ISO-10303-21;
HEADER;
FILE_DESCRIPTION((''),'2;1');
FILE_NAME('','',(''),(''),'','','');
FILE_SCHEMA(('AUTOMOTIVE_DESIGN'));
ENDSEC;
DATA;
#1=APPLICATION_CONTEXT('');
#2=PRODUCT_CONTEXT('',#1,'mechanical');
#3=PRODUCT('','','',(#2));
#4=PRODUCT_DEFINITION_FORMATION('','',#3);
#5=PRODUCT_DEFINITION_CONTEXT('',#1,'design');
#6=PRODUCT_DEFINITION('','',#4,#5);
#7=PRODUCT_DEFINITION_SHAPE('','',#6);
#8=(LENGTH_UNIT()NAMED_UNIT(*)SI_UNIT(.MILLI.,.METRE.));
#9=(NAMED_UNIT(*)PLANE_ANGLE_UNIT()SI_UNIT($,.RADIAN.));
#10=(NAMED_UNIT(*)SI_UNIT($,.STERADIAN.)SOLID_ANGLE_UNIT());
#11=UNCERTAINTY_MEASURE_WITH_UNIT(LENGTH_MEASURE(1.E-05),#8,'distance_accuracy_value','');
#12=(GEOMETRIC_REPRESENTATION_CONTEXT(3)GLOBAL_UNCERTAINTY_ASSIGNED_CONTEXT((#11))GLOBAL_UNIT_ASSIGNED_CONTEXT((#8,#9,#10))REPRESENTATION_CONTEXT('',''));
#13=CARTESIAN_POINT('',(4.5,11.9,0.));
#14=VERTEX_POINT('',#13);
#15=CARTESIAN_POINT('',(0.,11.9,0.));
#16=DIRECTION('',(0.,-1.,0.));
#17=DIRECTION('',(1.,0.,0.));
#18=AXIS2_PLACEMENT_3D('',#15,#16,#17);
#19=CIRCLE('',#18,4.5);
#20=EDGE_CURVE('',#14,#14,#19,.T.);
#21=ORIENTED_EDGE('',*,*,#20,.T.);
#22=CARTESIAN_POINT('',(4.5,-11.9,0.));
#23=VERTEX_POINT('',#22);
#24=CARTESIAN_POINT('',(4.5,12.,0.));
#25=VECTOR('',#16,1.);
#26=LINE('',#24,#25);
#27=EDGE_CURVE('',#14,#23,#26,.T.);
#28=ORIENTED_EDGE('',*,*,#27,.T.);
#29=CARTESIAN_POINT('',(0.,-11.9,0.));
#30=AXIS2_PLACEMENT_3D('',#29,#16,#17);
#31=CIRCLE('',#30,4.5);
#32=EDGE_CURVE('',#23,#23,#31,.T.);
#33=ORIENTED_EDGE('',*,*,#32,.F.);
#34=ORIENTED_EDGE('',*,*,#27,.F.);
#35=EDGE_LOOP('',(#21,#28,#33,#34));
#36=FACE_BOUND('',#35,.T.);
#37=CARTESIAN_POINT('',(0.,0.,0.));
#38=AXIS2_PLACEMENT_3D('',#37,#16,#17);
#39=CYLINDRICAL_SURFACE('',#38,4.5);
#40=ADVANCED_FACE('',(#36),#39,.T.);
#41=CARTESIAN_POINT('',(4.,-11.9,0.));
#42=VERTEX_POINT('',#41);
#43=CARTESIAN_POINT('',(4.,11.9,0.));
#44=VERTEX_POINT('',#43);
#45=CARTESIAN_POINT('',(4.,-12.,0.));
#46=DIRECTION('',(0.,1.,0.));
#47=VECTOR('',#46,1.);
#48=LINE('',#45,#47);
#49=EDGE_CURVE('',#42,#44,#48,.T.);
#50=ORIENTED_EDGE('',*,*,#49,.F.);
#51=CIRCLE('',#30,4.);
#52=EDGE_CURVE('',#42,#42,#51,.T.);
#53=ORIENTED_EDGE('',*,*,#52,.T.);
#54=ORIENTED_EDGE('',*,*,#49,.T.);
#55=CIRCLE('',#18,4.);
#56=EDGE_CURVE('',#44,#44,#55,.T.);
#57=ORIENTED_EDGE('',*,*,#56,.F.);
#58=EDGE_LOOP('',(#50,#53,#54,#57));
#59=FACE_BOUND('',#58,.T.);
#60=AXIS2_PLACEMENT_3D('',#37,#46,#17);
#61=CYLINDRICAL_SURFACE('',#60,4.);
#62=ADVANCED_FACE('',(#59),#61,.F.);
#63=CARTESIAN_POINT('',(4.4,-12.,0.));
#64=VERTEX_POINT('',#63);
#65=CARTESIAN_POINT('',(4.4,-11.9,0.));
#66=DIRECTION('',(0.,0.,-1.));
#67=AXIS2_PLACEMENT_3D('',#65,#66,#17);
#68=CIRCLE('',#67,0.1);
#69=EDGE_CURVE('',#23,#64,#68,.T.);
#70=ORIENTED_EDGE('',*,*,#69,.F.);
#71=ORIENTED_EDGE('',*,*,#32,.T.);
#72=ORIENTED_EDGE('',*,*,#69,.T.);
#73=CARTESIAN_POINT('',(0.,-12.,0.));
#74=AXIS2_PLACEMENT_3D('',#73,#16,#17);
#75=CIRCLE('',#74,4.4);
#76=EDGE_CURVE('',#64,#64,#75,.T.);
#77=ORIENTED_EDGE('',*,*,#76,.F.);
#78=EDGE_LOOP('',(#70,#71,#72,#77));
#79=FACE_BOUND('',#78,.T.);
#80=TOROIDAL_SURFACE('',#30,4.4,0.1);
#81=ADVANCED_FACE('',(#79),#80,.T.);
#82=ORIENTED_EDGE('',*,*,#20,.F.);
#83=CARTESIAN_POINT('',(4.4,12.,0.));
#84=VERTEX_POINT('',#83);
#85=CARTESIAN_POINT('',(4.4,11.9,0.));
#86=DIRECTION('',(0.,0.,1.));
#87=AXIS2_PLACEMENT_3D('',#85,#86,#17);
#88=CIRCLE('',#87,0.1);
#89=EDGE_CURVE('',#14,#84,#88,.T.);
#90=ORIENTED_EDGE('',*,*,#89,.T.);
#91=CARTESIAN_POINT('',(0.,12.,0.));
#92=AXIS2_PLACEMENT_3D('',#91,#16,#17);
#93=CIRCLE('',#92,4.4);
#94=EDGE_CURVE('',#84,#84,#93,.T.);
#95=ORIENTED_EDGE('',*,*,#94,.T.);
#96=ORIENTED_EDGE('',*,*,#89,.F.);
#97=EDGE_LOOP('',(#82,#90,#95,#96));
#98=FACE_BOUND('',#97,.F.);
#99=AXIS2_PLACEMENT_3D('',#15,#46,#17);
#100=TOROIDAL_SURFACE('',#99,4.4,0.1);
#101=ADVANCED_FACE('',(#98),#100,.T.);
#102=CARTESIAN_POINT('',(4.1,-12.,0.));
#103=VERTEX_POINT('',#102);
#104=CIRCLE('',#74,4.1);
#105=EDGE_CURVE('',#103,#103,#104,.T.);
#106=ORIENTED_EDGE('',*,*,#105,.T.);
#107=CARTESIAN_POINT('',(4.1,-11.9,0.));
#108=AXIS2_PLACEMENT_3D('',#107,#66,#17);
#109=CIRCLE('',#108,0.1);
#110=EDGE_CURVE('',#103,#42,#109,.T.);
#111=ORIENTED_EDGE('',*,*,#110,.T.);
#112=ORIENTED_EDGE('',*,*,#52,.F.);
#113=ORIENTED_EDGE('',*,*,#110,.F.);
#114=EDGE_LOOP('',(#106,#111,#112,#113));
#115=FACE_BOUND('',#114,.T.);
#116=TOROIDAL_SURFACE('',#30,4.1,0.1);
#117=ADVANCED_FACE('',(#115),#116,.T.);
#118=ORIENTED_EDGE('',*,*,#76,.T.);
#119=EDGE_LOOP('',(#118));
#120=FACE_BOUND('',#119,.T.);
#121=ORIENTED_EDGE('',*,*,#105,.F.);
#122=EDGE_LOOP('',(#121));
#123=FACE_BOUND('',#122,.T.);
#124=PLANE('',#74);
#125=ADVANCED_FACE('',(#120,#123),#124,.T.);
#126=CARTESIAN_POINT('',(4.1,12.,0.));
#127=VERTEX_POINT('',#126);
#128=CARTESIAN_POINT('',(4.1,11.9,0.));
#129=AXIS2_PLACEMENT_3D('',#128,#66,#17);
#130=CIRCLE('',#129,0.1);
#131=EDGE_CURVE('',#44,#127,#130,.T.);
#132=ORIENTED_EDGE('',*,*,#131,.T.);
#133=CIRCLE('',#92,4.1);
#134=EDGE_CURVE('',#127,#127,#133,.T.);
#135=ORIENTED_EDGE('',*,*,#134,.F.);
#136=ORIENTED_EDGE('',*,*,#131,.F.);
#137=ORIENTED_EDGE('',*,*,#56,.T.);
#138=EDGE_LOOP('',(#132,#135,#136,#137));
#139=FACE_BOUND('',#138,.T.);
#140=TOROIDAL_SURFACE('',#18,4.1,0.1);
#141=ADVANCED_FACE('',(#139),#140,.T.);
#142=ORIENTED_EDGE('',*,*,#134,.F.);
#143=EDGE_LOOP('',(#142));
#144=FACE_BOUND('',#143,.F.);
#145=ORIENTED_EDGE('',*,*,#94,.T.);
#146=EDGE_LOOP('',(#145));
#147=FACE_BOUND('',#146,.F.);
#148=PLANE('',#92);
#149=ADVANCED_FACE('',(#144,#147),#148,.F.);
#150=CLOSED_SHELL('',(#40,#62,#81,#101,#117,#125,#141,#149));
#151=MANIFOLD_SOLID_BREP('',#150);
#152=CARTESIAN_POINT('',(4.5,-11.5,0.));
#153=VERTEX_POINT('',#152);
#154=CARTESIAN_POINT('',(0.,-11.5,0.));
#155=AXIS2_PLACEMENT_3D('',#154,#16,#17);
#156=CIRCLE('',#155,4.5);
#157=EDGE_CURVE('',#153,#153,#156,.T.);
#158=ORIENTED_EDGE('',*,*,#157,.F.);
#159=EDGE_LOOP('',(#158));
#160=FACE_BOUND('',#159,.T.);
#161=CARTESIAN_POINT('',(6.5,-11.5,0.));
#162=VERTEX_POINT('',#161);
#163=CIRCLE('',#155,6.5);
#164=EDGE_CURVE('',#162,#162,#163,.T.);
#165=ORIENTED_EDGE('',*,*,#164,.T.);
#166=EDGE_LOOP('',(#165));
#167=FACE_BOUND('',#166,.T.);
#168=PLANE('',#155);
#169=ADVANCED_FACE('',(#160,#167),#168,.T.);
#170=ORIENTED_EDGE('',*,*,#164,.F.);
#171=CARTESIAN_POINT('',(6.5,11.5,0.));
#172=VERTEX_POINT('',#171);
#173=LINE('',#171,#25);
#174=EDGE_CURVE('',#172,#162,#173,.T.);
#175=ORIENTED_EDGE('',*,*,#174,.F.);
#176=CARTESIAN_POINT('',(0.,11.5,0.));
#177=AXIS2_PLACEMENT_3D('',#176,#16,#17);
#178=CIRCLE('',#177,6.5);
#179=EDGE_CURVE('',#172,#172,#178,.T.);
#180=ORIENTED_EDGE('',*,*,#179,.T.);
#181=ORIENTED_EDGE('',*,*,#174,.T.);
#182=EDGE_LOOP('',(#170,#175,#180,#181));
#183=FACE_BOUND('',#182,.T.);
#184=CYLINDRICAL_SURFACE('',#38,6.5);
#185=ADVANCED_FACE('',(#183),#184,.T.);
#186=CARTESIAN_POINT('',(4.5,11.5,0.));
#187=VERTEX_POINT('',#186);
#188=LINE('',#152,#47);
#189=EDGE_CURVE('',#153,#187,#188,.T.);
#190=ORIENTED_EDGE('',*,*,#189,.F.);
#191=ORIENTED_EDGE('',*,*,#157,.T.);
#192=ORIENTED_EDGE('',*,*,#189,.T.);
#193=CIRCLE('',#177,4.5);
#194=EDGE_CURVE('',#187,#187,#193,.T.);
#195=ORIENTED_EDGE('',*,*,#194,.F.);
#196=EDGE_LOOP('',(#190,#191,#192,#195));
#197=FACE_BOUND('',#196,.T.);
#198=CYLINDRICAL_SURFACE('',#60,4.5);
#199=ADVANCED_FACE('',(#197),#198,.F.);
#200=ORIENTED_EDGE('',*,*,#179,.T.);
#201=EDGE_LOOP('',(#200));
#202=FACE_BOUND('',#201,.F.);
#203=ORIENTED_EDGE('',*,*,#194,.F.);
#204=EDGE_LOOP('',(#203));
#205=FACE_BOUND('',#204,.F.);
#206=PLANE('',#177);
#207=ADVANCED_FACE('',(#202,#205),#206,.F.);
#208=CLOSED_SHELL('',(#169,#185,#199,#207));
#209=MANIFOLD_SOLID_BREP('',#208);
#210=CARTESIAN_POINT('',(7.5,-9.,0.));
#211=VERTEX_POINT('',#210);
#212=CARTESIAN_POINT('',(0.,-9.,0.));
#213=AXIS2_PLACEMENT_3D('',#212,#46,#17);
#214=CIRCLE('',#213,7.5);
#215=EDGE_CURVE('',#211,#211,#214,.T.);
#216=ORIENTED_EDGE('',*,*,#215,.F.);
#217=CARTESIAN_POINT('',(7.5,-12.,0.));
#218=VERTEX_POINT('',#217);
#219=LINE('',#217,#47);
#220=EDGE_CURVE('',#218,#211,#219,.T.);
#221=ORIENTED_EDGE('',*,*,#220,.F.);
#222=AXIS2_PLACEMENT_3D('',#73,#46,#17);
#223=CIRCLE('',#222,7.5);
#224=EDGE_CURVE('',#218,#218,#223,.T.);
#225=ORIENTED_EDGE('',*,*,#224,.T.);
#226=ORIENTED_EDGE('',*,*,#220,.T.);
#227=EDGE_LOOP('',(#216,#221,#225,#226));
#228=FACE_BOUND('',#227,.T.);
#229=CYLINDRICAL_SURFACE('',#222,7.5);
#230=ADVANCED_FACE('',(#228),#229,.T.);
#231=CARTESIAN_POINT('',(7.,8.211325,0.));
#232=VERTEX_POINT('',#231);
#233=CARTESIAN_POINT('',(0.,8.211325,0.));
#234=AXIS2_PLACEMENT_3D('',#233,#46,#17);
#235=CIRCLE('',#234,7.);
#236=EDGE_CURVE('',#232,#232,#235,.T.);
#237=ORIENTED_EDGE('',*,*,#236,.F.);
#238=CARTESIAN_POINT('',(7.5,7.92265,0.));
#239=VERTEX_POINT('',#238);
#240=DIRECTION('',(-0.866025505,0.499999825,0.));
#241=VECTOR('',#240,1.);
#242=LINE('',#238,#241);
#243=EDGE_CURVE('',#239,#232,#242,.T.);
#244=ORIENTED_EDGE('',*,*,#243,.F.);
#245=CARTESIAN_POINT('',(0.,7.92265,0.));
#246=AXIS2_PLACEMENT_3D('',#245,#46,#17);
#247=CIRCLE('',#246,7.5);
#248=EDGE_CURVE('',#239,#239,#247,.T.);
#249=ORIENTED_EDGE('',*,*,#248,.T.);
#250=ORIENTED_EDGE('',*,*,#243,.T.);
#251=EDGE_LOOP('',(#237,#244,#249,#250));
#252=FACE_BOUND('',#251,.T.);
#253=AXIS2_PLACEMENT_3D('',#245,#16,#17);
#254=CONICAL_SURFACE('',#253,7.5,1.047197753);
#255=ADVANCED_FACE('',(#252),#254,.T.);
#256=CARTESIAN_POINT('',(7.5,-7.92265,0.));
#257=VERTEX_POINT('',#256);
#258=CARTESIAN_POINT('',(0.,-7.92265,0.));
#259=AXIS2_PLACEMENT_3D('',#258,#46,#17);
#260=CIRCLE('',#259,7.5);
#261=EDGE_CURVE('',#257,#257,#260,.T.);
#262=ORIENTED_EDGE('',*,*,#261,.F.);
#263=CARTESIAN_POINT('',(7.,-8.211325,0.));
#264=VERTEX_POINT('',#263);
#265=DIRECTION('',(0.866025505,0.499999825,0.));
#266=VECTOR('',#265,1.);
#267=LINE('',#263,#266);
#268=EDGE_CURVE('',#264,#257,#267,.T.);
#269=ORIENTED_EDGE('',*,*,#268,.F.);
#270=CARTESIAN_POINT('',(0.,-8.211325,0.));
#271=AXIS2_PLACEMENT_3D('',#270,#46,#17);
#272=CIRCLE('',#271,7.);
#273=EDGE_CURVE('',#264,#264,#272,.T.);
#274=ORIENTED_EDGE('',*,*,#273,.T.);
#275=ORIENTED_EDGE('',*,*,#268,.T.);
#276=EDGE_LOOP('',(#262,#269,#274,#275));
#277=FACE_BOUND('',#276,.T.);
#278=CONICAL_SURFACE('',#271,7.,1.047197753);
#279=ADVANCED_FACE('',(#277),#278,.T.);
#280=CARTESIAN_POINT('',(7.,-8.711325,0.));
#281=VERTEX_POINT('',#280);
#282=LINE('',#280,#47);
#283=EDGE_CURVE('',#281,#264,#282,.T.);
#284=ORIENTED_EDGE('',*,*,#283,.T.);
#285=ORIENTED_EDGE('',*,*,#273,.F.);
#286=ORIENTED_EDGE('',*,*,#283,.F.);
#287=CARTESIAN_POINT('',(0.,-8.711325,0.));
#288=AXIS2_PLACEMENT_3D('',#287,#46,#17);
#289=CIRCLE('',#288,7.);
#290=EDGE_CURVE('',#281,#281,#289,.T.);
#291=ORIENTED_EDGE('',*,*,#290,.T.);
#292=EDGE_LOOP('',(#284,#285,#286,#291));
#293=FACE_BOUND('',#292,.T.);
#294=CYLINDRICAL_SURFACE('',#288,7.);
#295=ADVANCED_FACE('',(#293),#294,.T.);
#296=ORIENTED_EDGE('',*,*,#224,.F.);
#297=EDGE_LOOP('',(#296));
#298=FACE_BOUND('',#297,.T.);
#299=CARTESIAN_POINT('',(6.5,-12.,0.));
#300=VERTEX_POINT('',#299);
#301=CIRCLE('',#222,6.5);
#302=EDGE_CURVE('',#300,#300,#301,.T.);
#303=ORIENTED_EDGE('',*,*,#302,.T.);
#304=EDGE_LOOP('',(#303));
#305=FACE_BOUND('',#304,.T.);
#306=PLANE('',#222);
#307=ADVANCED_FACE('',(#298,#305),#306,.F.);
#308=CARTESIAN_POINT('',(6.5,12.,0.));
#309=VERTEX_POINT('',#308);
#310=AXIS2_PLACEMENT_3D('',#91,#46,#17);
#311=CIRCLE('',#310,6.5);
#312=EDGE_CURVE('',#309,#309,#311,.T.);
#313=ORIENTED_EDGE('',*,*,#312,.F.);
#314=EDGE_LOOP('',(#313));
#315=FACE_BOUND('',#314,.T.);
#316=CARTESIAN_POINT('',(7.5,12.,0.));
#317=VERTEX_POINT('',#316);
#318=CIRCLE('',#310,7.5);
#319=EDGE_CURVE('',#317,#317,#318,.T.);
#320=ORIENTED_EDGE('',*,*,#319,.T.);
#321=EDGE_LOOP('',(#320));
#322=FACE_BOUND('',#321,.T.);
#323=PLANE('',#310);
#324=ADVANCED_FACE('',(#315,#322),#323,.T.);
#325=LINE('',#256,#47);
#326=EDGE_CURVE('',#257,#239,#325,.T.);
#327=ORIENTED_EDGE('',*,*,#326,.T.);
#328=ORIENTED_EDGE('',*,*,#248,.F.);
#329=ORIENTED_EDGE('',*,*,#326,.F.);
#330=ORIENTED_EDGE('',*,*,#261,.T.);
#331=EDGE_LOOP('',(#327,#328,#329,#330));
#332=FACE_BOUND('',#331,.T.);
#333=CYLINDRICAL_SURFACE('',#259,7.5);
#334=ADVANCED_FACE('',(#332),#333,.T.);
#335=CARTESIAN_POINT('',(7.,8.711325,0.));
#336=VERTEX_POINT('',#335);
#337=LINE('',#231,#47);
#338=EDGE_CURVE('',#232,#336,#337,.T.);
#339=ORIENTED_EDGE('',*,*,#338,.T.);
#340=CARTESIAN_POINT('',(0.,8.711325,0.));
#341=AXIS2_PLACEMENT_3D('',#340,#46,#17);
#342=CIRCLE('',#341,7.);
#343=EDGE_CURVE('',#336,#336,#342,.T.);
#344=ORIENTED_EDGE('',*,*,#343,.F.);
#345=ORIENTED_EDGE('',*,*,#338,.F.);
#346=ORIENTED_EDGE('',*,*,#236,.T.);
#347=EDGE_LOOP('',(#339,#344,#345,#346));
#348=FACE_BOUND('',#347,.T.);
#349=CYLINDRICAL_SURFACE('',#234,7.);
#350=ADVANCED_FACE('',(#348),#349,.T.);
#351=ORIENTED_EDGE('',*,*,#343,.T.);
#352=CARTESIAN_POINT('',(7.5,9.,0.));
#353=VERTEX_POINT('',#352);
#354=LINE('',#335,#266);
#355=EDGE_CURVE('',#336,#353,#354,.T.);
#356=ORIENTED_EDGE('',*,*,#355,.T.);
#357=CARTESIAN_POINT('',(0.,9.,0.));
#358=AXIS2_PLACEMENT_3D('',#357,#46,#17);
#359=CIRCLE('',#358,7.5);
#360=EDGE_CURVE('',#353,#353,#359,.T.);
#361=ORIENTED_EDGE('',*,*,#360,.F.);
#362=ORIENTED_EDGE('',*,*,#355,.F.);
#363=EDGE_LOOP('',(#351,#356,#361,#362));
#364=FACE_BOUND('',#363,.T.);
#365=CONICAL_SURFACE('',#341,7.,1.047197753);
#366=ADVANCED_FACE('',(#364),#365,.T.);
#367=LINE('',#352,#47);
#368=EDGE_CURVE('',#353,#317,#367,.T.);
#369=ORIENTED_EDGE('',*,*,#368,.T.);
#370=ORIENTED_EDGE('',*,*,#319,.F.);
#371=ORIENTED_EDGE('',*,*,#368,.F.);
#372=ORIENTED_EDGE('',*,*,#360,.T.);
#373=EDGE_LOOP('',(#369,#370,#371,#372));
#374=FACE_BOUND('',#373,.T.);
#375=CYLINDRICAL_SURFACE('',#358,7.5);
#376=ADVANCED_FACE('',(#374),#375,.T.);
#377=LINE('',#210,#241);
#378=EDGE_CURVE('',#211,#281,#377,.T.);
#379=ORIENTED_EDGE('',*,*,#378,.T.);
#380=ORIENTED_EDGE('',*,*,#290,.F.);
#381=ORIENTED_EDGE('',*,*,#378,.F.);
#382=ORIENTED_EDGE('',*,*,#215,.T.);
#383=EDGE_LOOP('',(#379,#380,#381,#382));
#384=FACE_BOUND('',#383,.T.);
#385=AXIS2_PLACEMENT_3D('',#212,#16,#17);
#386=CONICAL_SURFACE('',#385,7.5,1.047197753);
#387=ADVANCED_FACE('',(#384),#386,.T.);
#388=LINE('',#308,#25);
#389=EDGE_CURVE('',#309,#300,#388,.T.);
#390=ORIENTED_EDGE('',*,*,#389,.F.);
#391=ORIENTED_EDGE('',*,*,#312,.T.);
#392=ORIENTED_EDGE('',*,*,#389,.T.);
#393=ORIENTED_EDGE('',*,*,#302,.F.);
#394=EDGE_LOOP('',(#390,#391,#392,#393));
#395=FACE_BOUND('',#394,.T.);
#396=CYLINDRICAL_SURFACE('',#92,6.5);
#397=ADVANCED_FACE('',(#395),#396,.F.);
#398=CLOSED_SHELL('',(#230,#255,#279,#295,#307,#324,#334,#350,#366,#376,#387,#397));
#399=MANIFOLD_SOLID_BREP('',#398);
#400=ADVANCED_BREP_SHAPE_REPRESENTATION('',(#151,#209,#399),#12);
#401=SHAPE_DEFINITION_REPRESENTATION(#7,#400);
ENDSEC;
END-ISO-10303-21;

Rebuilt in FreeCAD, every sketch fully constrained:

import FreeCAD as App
import Part
import Sketcher
Q = App.Units.Quantity


def edges_at(feature, points):
    """Names of the edges that pass closest to the given points."""
    edges = feature.Shape.Edges
    near = lambda p: min(range(len(edges)), key=lambda i: edges[i].distToShape(Part.Vertex(*p))[0])
    return sorted({f"Edge{near(p) + 1}" for p in points})

doc = App.newDocument("Part")
body = doc.addObject("PartDesign::Body", "Body")

# Sketch on XZ plane
sketch1 = body.newObject("Sketcher::SketchObject", "Sketch")
sketch1.AttachmentSupport = (doc.getObject("XZ_Plane"), [""])
sketch1.MapMode = "FlatFace"
sketch1.addGeometry(Part.Circle(App.Vector(0, 0, 0), App.Vector(0, 0, 1), 4.5), False)
sketch1.addGeometry(Part.Circle(App.Vector(0, 0, 0), App.Vector(0, 0, 1), 4), False)
sketch1.addConstraint(Sketcher.Constraint("Coincident", 0, 3, -1, 1))
sketch1.addConstraint(Sketcher.Constraint("Coincident", 1, 3, -1, 1))
sketch1.addConstraint(Sketcher.Constraint("Diameter", 0, 9.0))
sketch1.addConstraint(Sketcher.Constraint("Diameter", 1, 8.0))
pad1 = body.newObject("PartDesign::Pad", "Pad")
pad1.Profile = sketch1
pad1.Length = 24
pad1.Midplane = True
doc.recompute()

fillet = body.newObject("PartDesign::Fillet", "Fillet")
fillet.Base = (pad1, edges_at(pad1, [
    (-4.5, 12, 0),
    (-4, 12, 0),
    (-4.5, -12, 0),
    (-4, -12, 0),
]))
fillet.Radius = 0.1
body2 = doc.addObject("PartDesign::Body", "Body001")

# Sketch on XZ plane
sketch2 = body2.newObject("Sketcher::SketchObject", "Sketch001")
sketch2.AttachmentSupport = (doc.getObject("XZ_Plane001"), [""])
sketch2.MapMode = "FlatFace"
sketch2.addGeometry(Part.Circle(App.Vector(0, 0, 0), App.Vector(0, 0, 1), 6.5), False)
sketch2.addGeometry(Part.Circle(App.Vector(0, 0, 0), App.Vector(0, 0, 1), 4.5), False)
sketch2.addConstraint(Sketcher.Constraint("Coincident", 0, 3, -1, 1))
sketch2.addConstraint(Sketcher.Constraint("Coincident", 1, 3, -1, 1))
sketch2.addConstraint(Sketcher.Constraint("Diameter", 0, 13.0))
sketch2.addConstraint(Sketcher.Constraint("Diameter", 1, 9.0))
pad2 = body2.newObject("PartDesign::Pad", "Pad001")
pad2.Profile = sketch2
pad2.Length = 23
pad2.Midplane = True
body3 = doc.addObject("PartDesign::Body", "Body002")

# Sketch on XY plane
sketch3 = body3.newObject("Sketcher::SketchObject", "Sketch002")
sketch3.AttachmentSupport = (doc.getObject("XY_Plane002"), [""])
sketch3.MapMode = "FlatFace"
sketch3.addGeometry(Part.LineSegment(App.Vector(6.5, 12, 0), App.Vector(6.5, -12, 0)), False)
sketch3.addGeometry(Part.LineSegment(App.Vector(6.5, -12, 0), App.Vector(7.5, -12, 0)), False)
sketch3.addGeometry(Part.LineSegment(App.Vector(7.5, -12, 0), App.Vector(7.5, -9, 0)), False)
sketch3.addGeometry(Part.LineSegment(App.Vector(7.5, -9, 0), App.Vector(7, -8.711325, 0)), False)
sketch3.addGeometry(Part.LineSegment(App.Vector(7, -8.711325, 0), App.Vector(7, -8.211325, 0)), False)
sketch3.addGeometry(Part.LineSegment(App.Vector(7, -8.211325, 0), App.Vector(7.5, -7.92265, 0)), False)
sketch3.addGeometry(Part.LineSegment(App.Vector(7.5, -7.92265, 0), App.Vector(7.5, 7.92265, 0)), False)
sketch3.addGeometry(Part.LineSegment(App.Vector(7.5, 7.92265, 0), App.Vector(7, 8.211325, 0)), False)
sketch3.addGeometry(Part.LineSegment(App.Vector(7, 8.211325, 0), App.Vector(7, 8.711325, 0)), False)
sketch3.addGeometry(Part.LineSegment(App.Vector(7, 8.711325, 0), App.Vector(7.5, 9, 0)), False)
sketch3.addGeometry(Part.LineSegment(App.Vector(7.5, 9, 0), App.Vector(7.5, 12, 0)), False)
sketch3.addGeometry(Part.LineSegment(App.Vector(7.5, 12, 0), App.Vector(6.5, 12, 0)), False)
sketch3.addConstraint(Sketcher.Constraint("Coincident", 0, 2, 1, 1))
sketch3.addConstraint(Sketcher.Constraint("Coincident", 1, 2, 2, 1))
sketch3.addConstraint(Sketcher.Constraint("Coincident", 2, 2, 3, 1))
sketch3.addConstraint(Sketcher.Constraint("Coincident", 3, 2, 4, 1))
sketch3.addConstraint(Sketcher.Constraint("Coincident", 4, 2, 5, 1))
sketch3.addConstraint(Sketcher.Constraint("Coincident", 5, 2, 6, 1))
sketch3.addConstraint(Sketcher.Constraint("Coincident", 6, 2, 7, 1))
sketch3.addConstraint(Sketcher.Constraint("Coincident", 7, 2, 8, 1))
sketch3.addConstraint(Sketcher.Constraint("Coincident", 8, 2, 9, 1))
sketch3.addConstraint(Sketcher.Constraint("Coincident", 9, 2, 10, 1))
sketch3.addConstraint(Sketcher.Constraint("Coincident", 10, 2, 11, 1))
sketch3.addConstraint(Sketcher.Constraint("Coincident", 11, 2, 0, 1))
sketch3.addConstraint(Sketcher.Constraint("Vertical", 0))
sketch3.addConstraint(Sketcher.Constraint("Horizontal", 1))
sketch3.addConstraint(Sketcher.Constraint("Vertical", 2))
sketch3.addConstraint(Sketcher.Constraint("Vertical", 4))
sketch3.addConstraint(Sketcher.Constraint("Vertical", 6))
sketch3.addConstraint(Sketcher.Constraint("Vertical", 8))
sketch3.addConstraint(Sketcher.Constraint("Vertical", 10))
sketch3.addConstraint(Sketcher.Constraint("Horizontal", 11))
sketch3.addConstraint(Sketcher.Constraint("Symmetric", 4, 2, 7, 2, -1))
sketch3.addConstraint(Sketcher.Constraint("Symmetric", 2, 2, 9, 2, -1))
sketch3.addConstraint(Sketcher.Constraint("Parallel", 3, 7))
sketch3.addConstraint(Sketcher.Constraint("Parallel", 5, 9))
sketch3.addConstraint(Sketcher.Constraint("Vertical", 2, 2, 5, 2))
sketch3.addConstraint(Sketcher.Constraint("Equal", 4, 8))
sketch3.addConstraint(Sketcher.Constraint("Equal", 2, 10))
sketch3.addConstraint(Sketcher.Constraint("DistanceX", 1, 1, 1, 2, 1.0))
sketch3.addConstraint(Sketcher.Constraint("DistanceY", 0, 2, 0, 1, 24.0))
sketch3.addConstraint(Sketcher.Constraint("DistanceY", 2, 1, 2, 2, 3.0))
sketch3.addConstraint(Sketcher.Constraint("Angle", 3, Q("150.000012 deg")))
sketch3.addConstraint(Sketcher.Constraint("DistanceY", 4, 1, 4, 2, 0.5))
sketch3.addConstraint(Sketcher.Constraint("DistanceX", -1, 1, 3, 2, 7.0))
sketch3.addConstraint(Sketcher.Constraint("DistanceX", -1, 1, 0, 2, 6.5))
revolution = body3.newObject("PartDesign::Revolution", "Revolution")
revolution.Profile = sketch3
revolution.ReferenceAxis = (sketch3, ["V_Axis"])
revolution.Angle = 360

doc.recompute()
